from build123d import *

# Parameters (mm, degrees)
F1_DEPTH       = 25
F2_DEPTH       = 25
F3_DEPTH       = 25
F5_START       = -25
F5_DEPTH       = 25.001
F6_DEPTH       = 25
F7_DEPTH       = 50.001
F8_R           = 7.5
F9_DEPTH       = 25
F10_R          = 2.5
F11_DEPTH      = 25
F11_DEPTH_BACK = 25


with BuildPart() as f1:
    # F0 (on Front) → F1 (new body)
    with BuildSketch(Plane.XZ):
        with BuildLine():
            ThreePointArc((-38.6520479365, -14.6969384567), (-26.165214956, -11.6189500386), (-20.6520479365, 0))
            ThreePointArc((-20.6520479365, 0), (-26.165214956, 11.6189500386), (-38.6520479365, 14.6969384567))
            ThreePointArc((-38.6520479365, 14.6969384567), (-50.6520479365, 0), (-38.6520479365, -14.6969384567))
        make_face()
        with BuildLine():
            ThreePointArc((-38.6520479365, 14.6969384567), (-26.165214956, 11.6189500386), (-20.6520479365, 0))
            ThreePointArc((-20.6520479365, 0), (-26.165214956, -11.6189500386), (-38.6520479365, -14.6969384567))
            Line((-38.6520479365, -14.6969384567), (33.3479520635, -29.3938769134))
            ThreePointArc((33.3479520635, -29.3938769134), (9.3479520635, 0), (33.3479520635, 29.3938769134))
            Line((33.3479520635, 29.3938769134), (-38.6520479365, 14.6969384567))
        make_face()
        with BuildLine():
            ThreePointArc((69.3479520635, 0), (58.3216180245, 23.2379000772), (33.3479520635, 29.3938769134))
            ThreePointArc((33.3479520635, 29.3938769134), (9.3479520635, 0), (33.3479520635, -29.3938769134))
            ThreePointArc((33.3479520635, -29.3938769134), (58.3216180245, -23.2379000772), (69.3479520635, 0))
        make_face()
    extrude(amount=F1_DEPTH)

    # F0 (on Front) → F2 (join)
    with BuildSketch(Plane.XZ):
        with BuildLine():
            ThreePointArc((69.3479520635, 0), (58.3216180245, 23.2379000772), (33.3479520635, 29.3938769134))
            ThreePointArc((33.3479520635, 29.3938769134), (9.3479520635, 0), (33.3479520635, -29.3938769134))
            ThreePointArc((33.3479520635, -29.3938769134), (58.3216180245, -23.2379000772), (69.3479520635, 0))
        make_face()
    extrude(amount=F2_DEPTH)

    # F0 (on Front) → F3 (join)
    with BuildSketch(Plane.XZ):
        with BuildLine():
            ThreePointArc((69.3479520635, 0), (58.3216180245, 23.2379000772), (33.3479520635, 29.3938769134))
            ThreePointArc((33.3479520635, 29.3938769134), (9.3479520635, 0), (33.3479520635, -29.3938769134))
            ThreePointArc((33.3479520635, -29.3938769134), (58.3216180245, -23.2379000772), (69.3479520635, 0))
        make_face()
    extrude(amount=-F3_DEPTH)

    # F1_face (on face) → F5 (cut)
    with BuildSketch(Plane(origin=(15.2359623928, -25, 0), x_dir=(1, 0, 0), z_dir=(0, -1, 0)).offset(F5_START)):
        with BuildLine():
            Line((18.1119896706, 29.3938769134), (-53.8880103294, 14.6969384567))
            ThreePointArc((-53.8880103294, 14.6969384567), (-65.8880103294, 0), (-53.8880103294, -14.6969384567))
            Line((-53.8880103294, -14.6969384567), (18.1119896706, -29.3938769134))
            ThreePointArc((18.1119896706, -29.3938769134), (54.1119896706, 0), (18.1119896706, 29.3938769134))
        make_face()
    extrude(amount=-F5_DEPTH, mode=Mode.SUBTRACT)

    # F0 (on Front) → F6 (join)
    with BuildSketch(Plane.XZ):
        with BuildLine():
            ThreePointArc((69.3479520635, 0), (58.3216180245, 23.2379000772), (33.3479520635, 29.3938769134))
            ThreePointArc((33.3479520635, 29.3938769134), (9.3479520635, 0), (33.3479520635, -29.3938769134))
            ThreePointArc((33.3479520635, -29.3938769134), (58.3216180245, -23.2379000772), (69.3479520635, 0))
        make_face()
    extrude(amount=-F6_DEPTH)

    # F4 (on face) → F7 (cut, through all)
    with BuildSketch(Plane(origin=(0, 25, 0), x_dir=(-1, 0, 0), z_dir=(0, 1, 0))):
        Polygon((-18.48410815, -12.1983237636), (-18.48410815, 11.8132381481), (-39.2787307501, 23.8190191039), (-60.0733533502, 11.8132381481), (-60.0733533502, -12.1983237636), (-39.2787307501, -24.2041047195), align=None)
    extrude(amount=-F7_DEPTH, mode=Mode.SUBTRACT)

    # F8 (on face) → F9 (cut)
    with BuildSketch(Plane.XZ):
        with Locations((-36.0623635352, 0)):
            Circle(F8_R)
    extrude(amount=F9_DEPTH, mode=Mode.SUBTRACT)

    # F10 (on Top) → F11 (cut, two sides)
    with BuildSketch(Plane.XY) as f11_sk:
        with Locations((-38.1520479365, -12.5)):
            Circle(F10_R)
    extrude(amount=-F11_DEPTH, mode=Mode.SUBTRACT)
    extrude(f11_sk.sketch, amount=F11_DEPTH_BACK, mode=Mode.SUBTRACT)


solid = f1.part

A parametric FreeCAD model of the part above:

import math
import FreeCAD as App
import Part
import Sketcher
Q = App.Units.Quantity


def add_polygon(sketch, points):
    """Adds a closed chain of lines whose ends are joined by coincident constraints."""
    first, n = sketch.GeometryCount, len(points)
    for a, b in zip(points, points[1:] + points[:1]):
        sketch.addGeometry(Part.LineSegment(App.Vector(*a, 0), App.Vector(*b, 0)), False)
    for i in range(n):
        sketch.addConstraint(Sketcher.Constraint("Coincident", first + i, 2, first + (i + 1) % n, 1))

doc = App.newDocument("Part")
body = doc.addObject("PartDesign::Body", "Body")

sketch1 = body.newObject("Sketcher::SketchObject", "Sketch")
sketch1.AttachmentSupport = (doc.getObject("XZ_Plane"), [""])
sketch1.MapMode = "FlatFace"
sketch1.addGeometry([
    Part.ArcOfCircle(Part.Circle(App.Vector(-36, 0, 0), App.Vector(0, 0, 1), 15), math.radians(102), math.radians(258)),
    Part.LineSegment(App.Vector(-39, -15, 0), App.Vector(33, -29, 0)),
    Part.ArcOfCircle(Part.Circle(App.Vector(39, 0, 0), App.Vector(0, 0, 1), 30), math.radians(-102), math.radians(0)),
    Part.ArcOfCircle(Part.Circle(App.Vector(39, 0, 0), App.Vector(0, 0, 1), 30), math.radians(0), math.radians(102)),
    Part.LineSegment(App.Vector(33, 29, 0), App.Vector(-39, 15, 0)),
], False)
sketch1.addConstraint([
    Sketcher.Constraint("Tangent", 0, 2, 1, 1),
    Sketcher.Constraint("Tangent", 1, 2, 2, 1),
    Sketcher.Constraint("Tangent", 2, 2, 3, 1),
    Sketcher.Constraint("Tangent", 3, 2, 4, 1),
    Sketcher.Constraint("Tangent", 4, 2, 0, 1),
    Sketcher.Constraint("Equal", 2, 3),
    Sketcher.Constraint("Symmetric", 1, 2, 3, 2, -1),
    Sketcher.Constraint("PointOnObject", 2, 2, -1),
    Sketcher.Constraint("Radius", 0, Q("15 mm")),
    Sketcher.Constraint("Radius", 2, Q("30 mm")),
    Sketcher.Constraint("DistanceX", 0, 3, 2, 3, Q("75 mm")),
    Sketcher.Constraint("DistanceX", 0, 3, -1, 1, Q("35.652048 mm")),
])
pad1 = body.newObject("PartDesign::Pad", "Pad")
pad1.Profile = sketch1
pad1.Length = 25

sketch2 = body.newObject("Sketcher::SketchObject", "Sketch001")
sketch2.AttachmentSupport = (doc.getObject("XZ_Plane"), [""])
sketch2.MapMode = "FlatFace"
sketch2.addGeometry([
    Part.ArcOfCircle(Part.Circle(App.Vector(39, 0, 0), App.Vector(0, 0, 1), 30), math.radians(0), math.radians(102)),
    Part.ArcOfCircle(Part.Circle(App.Vector(39, 0, 0), App.Vector(0, 0, 1), 30), math.radians(102), math.radians(258)),
    Part.ArcOfCircle(Part.Circle(App.Vector(39, 0, 0), App.Vector(0, 0, 1), 30), math.radians(-102), math.radians(0)),
], False)
sketch2.addConstraint([
    Sketcher.Constraint("Tangent", 0, 2, 1, 1),
    Sketcher.Constraint("Tangent", 1, 2, 2, 1),
    Sketcher.Constraint("Tangent", 2, 2, 0, 1),
    Sketcher.Constraint("Symmetric", 0, 2, 1, 2, -1),
    Sketcher.Constraint("PointOnObject", 2, 2, -1),
    Sketcher.Constraint("Radius", 0, Q("30 mm")),
    Sketcher.Constraint("DistanceX", 0, 2, 0, 3, Q("6 mm")),
    Sketcher.Constraint("DistanceX", -1, 1, 0, 3, Q("39.347952 mm")),
])
pad2 = body.newObject("PartDesign::Pad", "Pad001")
pad2.Profile = sketch2
pad2.Length = 25

sketch3 = body.newObject("Sketcher::SketchObject", "Sketch002")
sketch3.AttachmentSupport = (doc.getObject("XZ_Plane"), [""])
sketch3.MapMode = "FlatFace"
sketch3.addGeometry([
    Part.ArcOfCircle(Part.Circle(App.Vector(39, 0, 0), App.Vector(0, 0, 1), 30), math.radians(0), math.radians(102)),
    Part.ArcOfCircle(Part.Circle(App.Vector(39, 0, 0), App.Vector(0, 0, 1), 30), math.radians(102), math.radians(258)),
    Part.ArcOfCircle(Part.Circle(App.Vector(39, 0, 0), App.Vector(0, 0, 1), 30), math.radians(-102), math.radians(0)),
], False)
sketch3.addConstraint([
    Sketcher.Constraint("Tangent", 0, 2, 1, 1),
    Sketcher.Constraint("Tangent", 1, 2, 2, 1),
    Sketcher.Constraint("Tangent", 2, 2, 0, 1),
    Sketcher.Constraint("Symmetric", 0, 2, 1, 2, -1),
    Sketcher.Constraint("PointOnObject", 2, 2, -1),
    Sketcher.Constraint("Radius", 0, Q("30 mm")),
    Sketcher.Constraint("DistanceX", 0, 2, 0, 3, Q("6 mm")),
    Sketcher.Constraint("DistanceX", -1, 1, 0, 3, Q("39.347952 mm")),
])
pad3 = body.newObject("PartDesign::Pad", "Pad002")
pad3.Profile = sketch3
pad3.Length = 25
pad3.Reversed = True

sketch4 = body.newObject("Sketcher::SketchObject", "Sketch003")
sketch4.AttachmentSupport = (doc.getObject("XZ_Plane"), [""])
sketch4.MapMode = "FlatFace"
sketch4.addGeometry([
    Part.LineSegment(App.Vector(33, 29, 0), App.Vector(-39, 15, 0)),
    Part.ArcOfCircle(Part.Circle(App.Vector(-36, 0, 0), App.Vector(0, 0, 1), 15), math.radians(102), math.radians(258)),
    Part.LineSegment(App.Vector(-39, -15, 0), App.Vector(33, -29, 0)),
    Part.ArcOfCircle(Part.Circle(App.Vector(39, 0, 0), App.Vector(0, 0, 1), 30), math.radians(-102), math.radians(102)),
], False)
sketch4.addConstraint([
    Sketcher.Constraint("Tangent", 0, 2, 1, 1),
    Sketcher.Constraint("Tangent", 1, 2, 2, 1),
    Sketcher.Constraint("Tangent", 2, 2, 3, 1),
    Sketcher.Constraint("Tangent", 3, 2, 0, 1),
    Sketcher.Constraint("Symmetric", 0, 2, 1, 2, -1),
    Sketcher.Constraint("Radius", 1, Q("15 mm")),
    Sketcher.Constraint("Radius", 3, Q("30 mm")),
    Sketcher.Constraint("DistanceX", 1, 3, 3, 3, Q("75 mm")),
    Sketcher.Constraint("DistanceX", 1, 3, -1, 1, Q("35.652048 mm")),
])
pocket1 = body.newObject("PartDesign::Pocket", "Pocket")
pocket1.Profile = sketch4
pocket1.Length = 25.001

sketch5 = body.newObject("Sketcher::SketchObject", "Sketch004")
sketch5.AttachmentSupport = (doc.getObject("XZ_Plane"), [""])
sketch5.MapMode = "FlatFace"
sketch5.addGeometry([
    Part.ArcOfCircle(Part.Circle(App.Vector(39, 0, 0), App.Vector(0, 0, 1), 30), math.radians(0), math.radians(102)),
    Part.ArcOfCircle(Part.Circle(App.Vector(39, 0, 0), App.Vector(0, 0, 1), 30), math.radians(102), math.radians(258)),
    Part.ArcOfCircle(Part.Circle(App.Vector(39, 0, 0), App.Vector(0, 0, 1), 30), math.radians(-102), math.radians(0)),
], False)
sketch5.addConstraint([
    Sketcher.Constraint("Tangent", 0, 2, 1, 1),
    Sketcher.Constraint("Tangent", 1, 2, 2, 1),
    Sketcher.Constraint("Tangent", 2, 2, 0, 1),
    Sketcher.Constraint("Symmetric", 0, 2, 1, 2, -1),
    Sketcher.Constraint("PointOnObject", 2, 2, -1),
    Sketcher.Constraint("Radius", 0, Q("30 mm")),
    Sketcher.Constraint("DistanceX", 0, 2, 0, 3, Q("6 mm")),
    Sketcher.Constraint("DistanceX", -1, 1, 0, 3, Q("39.347952 mm")),
])
pad4 = body.newObject("PartDesign::Pad", "Pad003")
pad4.Profile = sketch5
pad4.Length = 25
pad4.Reversed = True

sketch6 = body.newObject("Sketcher::SketchObject", "Sketch005")
sketch6.AttachmentSupport = (doc.getObject("XZ_Plane"), [""])
sketch6.MapMode = "FlatFace"
sketch6.AttachmentOffset = App.Placement(App.Vector(0, 0, -25), App.Rotation())
add_polygon(sketch6, [(18, -12), (18, 12), (39, 24), (60, 12), (60, -12), (39, -24)])
sketch6.addConstraint([
    Sketcher.Constraint("Vertical", 0),
    Sketcher.Constraint("Vertical", 3),
    Sketcher.Constraint("Parallel", 1, 4),
    Sketcher.Constraint("Parallel", 2, 5),
    Sketcher.Constraint("Horizontal", 0, 2, 2, 2),
    Sketcher.Constraint("Horizontal", 3, 2, 5, 2),
    Sketcher.Constraint("Vertical", 1, 2, 4, 2),
    Sketcher.Constraint("Angle", 1, Q("30 deg")),
    Sketcher.Constraint("DistanceY", 0, 1, 0, 2, Q("24.011562 mm")),
    Sketcher.Constraint("Distance", 1, Q("24.011562 mm")),
    Sketcher.Constraint("DistanceX", -1, 1, 0, 2, Q("18.484108 mm")),
    Sketcher.Constraint("DistanceY", -1, 1, 0, 2, Q("11.813238 mm")),
])
pocket2 = body.newObject("PartDesign::Pocket", "Pocket001")
pocket2.Profile = sketch6
pocket2.Type = "ThroughAll"
pocket2.Reversed = True

sketch7 = body.newObject("Sketcher::SketchObject", "Sketch006")
sketch7.AttachmentSupport = (doc.getObject("XZ_Plane"), [""])
sketch7.MapMode = "FlatFace"
sketch7.addGeometry(Part.Circle(App.Vector(-36, 0, 0), App.Vector(0, 0, 1), 8), False)
sketch7.addConstraint([
    Sketcher.Constraint("PointOnObject", 0, 3, -1),
    Sketcher.Constraint("Diameter", 0, Q("15 mm")),
    Sketcher.Constraint("DistanceX", 0, 3, -1, 1, Q("36.062364 mm")),
])
pocket3 = body.newObject("PartDesign::Pocket", "Pocket002")
pocket3.Profile = sketch7
pocket3.Length = 25
pocket3.Reversed = True

sketch8 = body.newObject("Sketcher::SketchObject", "Sketch007")
sketch8.AttachmentSupport = (doc.getObject("XY_Plane"), [""])
sketch8.MapMode = "FlatFace"
sketch8.addGeometry(Part.Circle(App.Vector(-38.2, -12.5, 0), App.Vector(0, 0, 1), 2.5), False)
sketch8.addConstraint([
    Sketcher.Constraint("Diameter", 0, Q("5 mm")),
    Sketcher.Constraint("DistanceY", 0, 3, -1, 1, Q("12.5 mm")),
    Sketcher.Constraint("DistanceX", 0, 3, -1, 1, Q("38.152048 mm")),
])
pocket4 = body.newObject("PartDesign::Pocket", "Pocket003")
pocket4.Profile = sketch8
pocket4.Type = "ThroughAll"
pocket4.Midplane = True

doc.recompute()
